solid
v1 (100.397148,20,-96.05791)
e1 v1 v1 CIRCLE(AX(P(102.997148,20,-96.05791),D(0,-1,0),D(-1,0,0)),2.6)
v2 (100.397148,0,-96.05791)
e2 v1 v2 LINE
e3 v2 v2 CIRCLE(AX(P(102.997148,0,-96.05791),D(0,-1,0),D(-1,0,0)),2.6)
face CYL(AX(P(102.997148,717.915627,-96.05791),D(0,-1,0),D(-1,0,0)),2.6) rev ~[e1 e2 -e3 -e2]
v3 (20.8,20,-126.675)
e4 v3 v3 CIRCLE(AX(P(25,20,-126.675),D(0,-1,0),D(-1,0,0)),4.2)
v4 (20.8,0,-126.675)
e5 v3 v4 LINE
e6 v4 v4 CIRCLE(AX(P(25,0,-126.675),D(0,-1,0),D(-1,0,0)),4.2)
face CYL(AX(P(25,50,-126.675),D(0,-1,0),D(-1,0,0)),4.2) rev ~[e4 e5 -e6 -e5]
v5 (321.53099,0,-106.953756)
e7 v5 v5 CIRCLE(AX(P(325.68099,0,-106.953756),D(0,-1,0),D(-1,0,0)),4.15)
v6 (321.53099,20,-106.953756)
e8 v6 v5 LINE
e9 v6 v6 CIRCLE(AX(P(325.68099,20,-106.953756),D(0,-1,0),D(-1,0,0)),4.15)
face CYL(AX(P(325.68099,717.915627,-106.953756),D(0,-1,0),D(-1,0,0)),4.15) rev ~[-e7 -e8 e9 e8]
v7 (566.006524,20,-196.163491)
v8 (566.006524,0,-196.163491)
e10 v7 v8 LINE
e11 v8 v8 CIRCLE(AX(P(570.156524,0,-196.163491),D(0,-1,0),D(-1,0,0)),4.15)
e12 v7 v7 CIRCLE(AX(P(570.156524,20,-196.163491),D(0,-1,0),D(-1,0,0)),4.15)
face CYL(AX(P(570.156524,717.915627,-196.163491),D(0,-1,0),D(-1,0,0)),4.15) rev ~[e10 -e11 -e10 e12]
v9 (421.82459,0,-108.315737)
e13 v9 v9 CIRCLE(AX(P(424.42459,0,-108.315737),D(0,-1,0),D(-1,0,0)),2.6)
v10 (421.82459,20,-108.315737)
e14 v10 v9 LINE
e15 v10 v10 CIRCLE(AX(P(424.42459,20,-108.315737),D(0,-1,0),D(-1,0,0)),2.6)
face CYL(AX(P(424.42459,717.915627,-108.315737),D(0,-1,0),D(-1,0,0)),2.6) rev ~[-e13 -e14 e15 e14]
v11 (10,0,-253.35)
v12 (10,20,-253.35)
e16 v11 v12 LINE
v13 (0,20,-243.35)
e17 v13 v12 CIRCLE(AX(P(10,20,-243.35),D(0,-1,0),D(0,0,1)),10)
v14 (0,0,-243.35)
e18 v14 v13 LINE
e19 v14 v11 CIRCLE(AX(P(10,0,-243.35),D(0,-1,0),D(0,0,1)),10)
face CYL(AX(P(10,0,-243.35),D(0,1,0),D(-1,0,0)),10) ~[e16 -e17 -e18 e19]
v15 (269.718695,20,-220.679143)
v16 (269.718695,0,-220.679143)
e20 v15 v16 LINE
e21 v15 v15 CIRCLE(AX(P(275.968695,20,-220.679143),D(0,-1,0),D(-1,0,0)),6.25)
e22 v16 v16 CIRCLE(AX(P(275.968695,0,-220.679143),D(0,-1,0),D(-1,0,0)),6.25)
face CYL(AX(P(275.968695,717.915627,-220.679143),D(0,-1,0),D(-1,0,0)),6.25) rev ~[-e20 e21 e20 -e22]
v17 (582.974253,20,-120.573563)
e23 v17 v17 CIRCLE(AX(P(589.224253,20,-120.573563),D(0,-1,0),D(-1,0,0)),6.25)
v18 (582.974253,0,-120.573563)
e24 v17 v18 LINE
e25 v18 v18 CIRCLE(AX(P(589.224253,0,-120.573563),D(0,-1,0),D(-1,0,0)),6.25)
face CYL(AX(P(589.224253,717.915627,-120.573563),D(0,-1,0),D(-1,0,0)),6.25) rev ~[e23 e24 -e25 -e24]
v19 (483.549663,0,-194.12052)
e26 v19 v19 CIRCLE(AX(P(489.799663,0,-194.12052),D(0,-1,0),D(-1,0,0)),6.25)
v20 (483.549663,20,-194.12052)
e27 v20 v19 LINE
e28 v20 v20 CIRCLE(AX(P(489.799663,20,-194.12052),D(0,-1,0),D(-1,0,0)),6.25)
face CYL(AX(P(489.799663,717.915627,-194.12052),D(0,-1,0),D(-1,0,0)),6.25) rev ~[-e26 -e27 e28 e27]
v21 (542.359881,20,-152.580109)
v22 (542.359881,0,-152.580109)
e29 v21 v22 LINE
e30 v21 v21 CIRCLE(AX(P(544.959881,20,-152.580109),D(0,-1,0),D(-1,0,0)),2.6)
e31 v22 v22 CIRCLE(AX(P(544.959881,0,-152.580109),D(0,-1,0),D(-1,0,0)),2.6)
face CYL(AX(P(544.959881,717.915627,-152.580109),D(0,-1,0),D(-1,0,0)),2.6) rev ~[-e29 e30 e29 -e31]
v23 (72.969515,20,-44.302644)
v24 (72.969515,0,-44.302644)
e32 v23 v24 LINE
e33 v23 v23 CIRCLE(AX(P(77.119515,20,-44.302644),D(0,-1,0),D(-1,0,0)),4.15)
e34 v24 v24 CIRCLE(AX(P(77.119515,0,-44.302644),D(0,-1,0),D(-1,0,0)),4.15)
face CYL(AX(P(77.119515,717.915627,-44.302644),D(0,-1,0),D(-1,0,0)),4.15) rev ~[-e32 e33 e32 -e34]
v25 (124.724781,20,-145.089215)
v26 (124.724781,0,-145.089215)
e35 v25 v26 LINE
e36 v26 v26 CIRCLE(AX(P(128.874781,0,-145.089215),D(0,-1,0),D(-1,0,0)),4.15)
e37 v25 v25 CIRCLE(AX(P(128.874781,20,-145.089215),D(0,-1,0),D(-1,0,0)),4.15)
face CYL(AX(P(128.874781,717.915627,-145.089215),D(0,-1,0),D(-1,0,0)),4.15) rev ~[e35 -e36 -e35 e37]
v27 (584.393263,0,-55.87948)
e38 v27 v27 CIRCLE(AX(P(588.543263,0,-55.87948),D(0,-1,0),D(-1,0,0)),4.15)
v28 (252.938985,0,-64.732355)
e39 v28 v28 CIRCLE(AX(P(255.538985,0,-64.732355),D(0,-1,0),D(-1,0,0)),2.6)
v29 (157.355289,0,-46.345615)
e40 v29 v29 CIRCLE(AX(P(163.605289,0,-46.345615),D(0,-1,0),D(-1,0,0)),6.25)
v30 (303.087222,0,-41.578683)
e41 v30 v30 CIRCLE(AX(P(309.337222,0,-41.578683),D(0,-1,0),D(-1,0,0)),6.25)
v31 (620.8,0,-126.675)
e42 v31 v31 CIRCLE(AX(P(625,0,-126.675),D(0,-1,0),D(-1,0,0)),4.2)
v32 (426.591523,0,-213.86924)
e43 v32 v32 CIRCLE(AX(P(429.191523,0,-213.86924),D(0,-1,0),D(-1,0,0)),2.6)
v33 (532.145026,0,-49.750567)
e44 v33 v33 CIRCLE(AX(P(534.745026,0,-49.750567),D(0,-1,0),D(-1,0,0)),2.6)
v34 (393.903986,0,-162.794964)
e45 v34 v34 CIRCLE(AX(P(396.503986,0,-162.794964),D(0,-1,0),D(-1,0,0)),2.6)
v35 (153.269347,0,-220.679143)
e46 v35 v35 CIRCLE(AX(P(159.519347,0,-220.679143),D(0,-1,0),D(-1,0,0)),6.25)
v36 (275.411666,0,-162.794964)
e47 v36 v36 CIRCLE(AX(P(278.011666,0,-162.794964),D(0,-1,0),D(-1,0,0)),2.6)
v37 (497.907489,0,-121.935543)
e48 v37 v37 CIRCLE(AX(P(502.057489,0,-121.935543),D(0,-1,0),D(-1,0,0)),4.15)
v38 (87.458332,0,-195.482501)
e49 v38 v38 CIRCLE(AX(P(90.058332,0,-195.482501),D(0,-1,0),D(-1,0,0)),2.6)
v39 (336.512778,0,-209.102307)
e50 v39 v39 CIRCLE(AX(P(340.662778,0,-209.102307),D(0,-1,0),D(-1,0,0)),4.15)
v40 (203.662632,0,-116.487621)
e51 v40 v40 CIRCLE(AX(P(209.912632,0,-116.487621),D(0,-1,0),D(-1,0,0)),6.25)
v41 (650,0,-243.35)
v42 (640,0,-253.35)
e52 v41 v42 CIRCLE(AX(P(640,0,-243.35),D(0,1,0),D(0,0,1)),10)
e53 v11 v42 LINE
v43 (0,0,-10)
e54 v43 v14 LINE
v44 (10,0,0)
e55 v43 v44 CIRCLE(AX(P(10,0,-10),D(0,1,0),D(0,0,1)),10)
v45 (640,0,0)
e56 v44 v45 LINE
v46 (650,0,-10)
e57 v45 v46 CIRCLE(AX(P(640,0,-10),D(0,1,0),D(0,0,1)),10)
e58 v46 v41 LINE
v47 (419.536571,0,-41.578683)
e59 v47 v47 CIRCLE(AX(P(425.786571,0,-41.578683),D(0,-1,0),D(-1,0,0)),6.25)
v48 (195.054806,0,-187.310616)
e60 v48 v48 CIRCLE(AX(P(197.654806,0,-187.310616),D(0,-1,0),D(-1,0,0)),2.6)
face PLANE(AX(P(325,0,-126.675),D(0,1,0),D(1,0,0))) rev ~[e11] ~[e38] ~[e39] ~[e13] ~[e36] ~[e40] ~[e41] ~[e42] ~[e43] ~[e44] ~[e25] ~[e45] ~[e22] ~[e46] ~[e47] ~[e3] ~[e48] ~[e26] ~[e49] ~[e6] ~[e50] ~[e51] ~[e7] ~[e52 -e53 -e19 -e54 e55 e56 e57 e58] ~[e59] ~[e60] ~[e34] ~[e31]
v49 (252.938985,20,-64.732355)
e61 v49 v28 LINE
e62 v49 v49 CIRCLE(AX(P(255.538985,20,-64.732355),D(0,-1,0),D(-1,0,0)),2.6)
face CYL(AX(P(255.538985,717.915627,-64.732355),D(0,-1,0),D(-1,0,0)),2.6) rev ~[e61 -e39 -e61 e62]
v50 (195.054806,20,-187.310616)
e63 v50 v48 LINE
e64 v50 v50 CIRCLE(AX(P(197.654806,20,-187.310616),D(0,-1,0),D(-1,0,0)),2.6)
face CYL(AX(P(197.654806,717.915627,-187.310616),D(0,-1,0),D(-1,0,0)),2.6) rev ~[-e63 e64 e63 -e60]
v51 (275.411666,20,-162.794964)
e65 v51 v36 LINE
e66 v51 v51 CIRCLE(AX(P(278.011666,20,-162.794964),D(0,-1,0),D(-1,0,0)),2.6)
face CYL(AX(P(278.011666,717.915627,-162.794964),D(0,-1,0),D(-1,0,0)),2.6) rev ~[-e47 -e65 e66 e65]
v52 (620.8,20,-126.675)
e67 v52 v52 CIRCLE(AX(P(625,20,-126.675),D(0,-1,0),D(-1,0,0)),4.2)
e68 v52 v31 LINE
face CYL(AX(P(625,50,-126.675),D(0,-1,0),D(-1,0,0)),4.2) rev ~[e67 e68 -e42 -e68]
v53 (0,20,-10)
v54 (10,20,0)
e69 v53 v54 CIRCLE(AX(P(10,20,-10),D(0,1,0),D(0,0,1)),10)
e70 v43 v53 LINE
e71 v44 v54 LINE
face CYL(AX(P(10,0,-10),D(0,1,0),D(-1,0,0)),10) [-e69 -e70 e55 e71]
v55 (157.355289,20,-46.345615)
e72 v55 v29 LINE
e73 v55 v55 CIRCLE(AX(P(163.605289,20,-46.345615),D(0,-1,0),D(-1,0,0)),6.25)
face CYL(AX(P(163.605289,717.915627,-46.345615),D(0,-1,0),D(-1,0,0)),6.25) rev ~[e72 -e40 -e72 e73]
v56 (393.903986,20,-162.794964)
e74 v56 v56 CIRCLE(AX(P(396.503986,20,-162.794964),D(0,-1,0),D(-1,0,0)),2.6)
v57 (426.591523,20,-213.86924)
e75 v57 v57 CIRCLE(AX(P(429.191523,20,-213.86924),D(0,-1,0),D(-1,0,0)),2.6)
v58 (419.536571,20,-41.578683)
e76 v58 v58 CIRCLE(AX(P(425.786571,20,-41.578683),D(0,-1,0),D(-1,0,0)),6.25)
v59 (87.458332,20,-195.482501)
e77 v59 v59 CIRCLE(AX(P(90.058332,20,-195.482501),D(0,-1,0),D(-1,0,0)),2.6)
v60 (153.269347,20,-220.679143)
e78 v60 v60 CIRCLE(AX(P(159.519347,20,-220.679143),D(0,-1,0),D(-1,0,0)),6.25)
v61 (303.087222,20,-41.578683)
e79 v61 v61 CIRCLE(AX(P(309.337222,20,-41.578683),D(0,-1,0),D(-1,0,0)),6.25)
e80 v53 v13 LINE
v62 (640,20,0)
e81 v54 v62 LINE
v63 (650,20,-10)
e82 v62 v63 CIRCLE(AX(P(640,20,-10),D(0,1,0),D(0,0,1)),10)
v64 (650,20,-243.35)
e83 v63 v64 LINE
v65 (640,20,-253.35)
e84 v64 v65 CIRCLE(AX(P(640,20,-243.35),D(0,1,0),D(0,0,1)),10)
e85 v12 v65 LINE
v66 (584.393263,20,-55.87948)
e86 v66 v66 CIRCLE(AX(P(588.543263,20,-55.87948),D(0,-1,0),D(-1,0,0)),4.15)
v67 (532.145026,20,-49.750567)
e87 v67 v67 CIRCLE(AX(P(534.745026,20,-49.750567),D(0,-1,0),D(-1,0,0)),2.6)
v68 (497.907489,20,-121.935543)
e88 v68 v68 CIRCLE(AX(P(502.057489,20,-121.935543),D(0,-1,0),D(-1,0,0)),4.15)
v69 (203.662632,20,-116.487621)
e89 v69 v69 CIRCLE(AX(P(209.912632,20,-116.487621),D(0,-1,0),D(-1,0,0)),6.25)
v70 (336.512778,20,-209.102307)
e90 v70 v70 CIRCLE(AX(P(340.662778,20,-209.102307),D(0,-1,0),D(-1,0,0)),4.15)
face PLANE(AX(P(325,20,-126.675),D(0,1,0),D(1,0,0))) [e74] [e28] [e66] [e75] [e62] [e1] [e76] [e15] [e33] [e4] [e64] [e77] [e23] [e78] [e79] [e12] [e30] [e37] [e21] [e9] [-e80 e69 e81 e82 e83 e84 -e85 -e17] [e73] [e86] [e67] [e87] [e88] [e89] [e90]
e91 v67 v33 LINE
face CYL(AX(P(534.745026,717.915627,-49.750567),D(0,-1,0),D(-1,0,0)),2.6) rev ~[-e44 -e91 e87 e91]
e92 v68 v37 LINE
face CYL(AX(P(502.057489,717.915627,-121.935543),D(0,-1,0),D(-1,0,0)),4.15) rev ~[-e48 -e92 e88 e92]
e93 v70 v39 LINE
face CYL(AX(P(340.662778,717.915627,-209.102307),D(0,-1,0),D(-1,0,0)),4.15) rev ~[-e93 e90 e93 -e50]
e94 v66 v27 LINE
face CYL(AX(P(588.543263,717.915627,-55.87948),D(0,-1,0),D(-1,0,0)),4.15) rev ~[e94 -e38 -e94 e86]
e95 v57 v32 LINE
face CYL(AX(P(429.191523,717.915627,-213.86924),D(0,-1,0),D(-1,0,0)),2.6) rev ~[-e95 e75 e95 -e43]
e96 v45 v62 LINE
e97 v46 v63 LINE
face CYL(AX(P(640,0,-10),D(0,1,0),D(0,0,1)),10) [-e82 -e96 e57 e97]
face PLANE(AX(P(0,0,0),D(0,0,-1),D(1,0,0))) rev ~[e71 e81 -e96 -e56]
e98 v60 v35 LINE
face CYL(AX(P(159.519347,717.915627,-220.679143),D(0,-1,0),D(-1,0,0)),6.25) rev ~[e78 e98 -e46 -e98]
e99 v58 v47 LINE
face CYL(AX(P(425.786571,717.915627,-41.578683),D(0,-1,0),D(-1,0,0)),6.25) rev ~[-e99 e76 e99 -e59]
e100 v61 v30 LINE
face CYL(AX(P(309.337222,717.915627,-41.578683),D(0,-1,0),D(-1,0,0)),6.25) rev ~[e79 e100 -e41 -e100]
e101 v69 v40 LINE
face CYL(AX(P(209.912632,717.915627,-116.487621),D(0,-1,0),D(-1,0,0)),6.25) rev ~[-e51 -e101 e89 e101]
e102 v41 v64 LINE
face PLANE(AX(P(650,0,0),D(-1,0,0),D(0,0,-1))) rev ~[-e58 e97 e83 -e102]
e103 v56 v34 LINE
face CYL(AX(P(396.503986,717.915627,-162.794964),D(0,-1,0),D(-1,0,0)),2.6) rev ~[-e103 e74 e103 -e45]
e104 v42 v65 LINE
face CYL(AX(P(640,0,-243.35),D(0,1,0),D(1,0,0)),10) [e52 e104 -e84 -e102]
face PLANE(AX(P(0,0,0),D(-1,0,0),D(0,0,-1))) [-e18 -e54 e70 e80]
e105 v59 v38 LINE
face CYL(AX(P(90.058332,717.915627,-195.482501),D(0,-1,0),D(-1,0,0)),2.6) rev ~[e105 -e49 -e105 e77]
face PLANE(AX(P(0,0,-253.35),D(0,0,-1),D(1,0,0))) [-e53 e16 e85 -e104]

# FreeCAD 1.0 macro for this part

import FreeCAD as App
import Part
import Sketcher
from FreeCAD import Vector


def edges_at(feature, points):
    """Names of the edges that pass closest to the given points."""
    edges = feature.Shape.Edges
    near = lambda p: min(range(len(edges)), key=lambda i: edges[i].distToShape(Part.Vertex(*p))[0])
    return sorted({f"Edge{near(p) + 1}" for p in points})


def add_polygon(sketch, points):
    """Adds a closed chain of lines whose ends are joined by coincident constraints."""
    first, n = sketch.GeometryCount, len(points)
    for a, b in zip(points, points[1:] + points[:1]):
        sketch.addGeometry(Part.LineSegment(App.Vector(*a, 0), App.Vector(*b, 0)), False)
    for i in range(n):
        sketch.addConstraint(Sketcher.Constraint("Coincident", first + i, 2, first + (i + 1) % n, 1))

doc = App.newDocument("Part")
body = doc.addObject("PartDesign::Body", "Body")

sketch1 = body.newObject("Sketcher::SketchObject", "Sketch")
sketch1.AttachmentSupport = (doc.getObject("XZ_Plane"), [""])
sketch1.MapMode = "FlatFace"
add_polygon(sketch1, [(0, -253), (0, 0), (650, 0), (650, -253)])
sketch1.addConstraint(Sketcher.Constraint("Vertical", 0))
sketch1.addConstraint(Sketcher.Constraint("Horizontal", 1))
sketch1.addConstraint(Sketcher.Constraint("Vertical", 2))
sketch1.addConstraint(Sketcher.Constraint("Horizontal", 3))
sketch1.addConstraint(Sketcher.Constraint("Coincident", 0, 2, -1, 1))
sketch1.addConstraint(Sketcher.Constraint("DistanceX", 1, 1, 1, 2, 650.0))
sketch1.addConstraint(Sketcher.Constraint("DistanceY", 0, 1, 0, 2, 253.35))
pad1 = body.newObject("PartDesign::Pad", "Pad")
pad1.Profile = sketch1
pad1.Length = 20
pad1.Reversed = True
doc.recompute()

fillet = body.newObject("PartDesign::Fillet", "Fillet")
fillet.Base = (pad1, edges_at(pad1, [
    (0, 10, 0),
    (0, 10, -253.35),
    (650, 10, -253.35),
    (650, 10, 0),
]))
fillet.Radius = 10

sketch2 = body.newObject("Sketcher::SketchObject", "Sketch001")
sketch2.AttachmentSupport = (doc.getObject("XZ_Plane"), [""])
sketch2.MapMode = "FlatFace"
sketch2.AttachmentOffset = App.Placement(Vector(0, 0, -20), App.Rotation())
sketch2.addGeometry(Part.Circle(Vector(90.1, -195.5, 0), Vector(0, 0, 1), 2.6), False)
sketch2.addGeometry(Part.Circle(Vector(255.5, -64.7, 0), Vector(0, 0, 1), 2.6), False)
sketch2.addGeometry(Part.Circle(Vector(396.5, -162.8, 0), Vector(0, 0, 1), 2.6), False)
sketch2.addGeometry(Part.Circle(Vector(545, -152.6, 0), Vector(0, 0, 1), 2.6), False)
sketch2.addGeometry(Part.Circle(Vector(534.7, -49.8, 0), Vector(0, 0, 1), 2.6), False)
sketch2.addGeometry(Part.Circle(Vector(278, -162.8, 0), Vector(0, 0, 1), 2.6), False)
sketch2.addGeometry(Part.Circle(Vector(103, -96.1, 0), Vector(0, 0, 1), 2.6), False)
sketch2.addGeometry(Part.Circle(Vector(429.2, -213.9, 0), Vector(0, 0, 1), 2.6), False)
sketch2.addGeometry(Part.Circle(Vector(424.4, -108.3, 0), Vector(0, 0, 1), 2.6), False)
sketch2.addGeometry(Part.Circle(Vector(197.7, -187.3, 0), Vector(0, 0, 1), 2.6), False)
sketch2.addConstraint(Sketcher.Constraint("Equal", 0, 1))
sketch2.addConstraint(Sketcher.Constraint("Equal", 1, 2))
sketch2.addConstraint(Sketcher.Constraint("Equal", 2, 3))
sketch2.addConstraint(Sketcher.Constraint("Equal", 3, 4))
sketch2.addConstraint(Sketcher.Constraint("Equal", 4, 5))
sketch2.addConstraint(Sketcher.Constraint("Equal", 5, 6))
sketch2.addConstraint(Sketcher.Constraint("Equal", 6, 7))
sketch2.addConstraint(Sketcher.Constraint("Equal", 7, 8))
sketch2.addConstraint(Sketcher.Constraint("Equal", 8, 9))
sketch2.addConstraint(Sketcher.Constraint("Horizontal", 2, 3, 5, 3))
sketch2.addConstraint(Sketcher.Constraint("Diameter", 0, 5.2))
sketch2.addConstraint(Sketcher.Constraint("DistanceX", 1, 3, 2, 3, 140.965001))
sketch2.addConstraint(Sketcher.Constraint("DistanceY", 0, 3, -1, 1, 195.482501))
sketch2.addConstraint(Sketcher.Constraint("DistanceX", -1, 1, 0, 3, 90.058332))
sketch2.addConstraint(Sketcher.Constraint("DistanceX", -1, 1, 3, 3, 544.959881))
sketch2.addConstraint(Sketcher.Constraint("DistanceY", 3, 3, -1, 1, 152.580109))
sketch2.addConstraint(Sketcher.Constraint("DistanceX", -1, 1, 6, 3, 102.997148))
sketch2.addConstraint(Sketcher.Constraint("DistanceY", 6, 3, -1, 1, 96.05791))
sketch2.addConstraint(Sketcher.Constraint("DistanceY", 7, 3, -1, 1, 213.86924))
sketch2.addConstraint(Sketcher.Constraint("DistanceX", -1, 1, 8, 3, 424.42459))
sketch2.addConstraint(Sketcher.Constraint("DistanceY", 2, 3, 1, 3, 98.062609))
sketch2.addConstraint(Sketcher.Constraint("DistanceY", 3, 3, 4, 3, 102.829542))
sketch2.addConstraint(Sketcher.Constraint("DistanceX", 2, 3, 4, 3, 138.24104))
sketch2.addConstraint(Sketcher.Constraint("DistanceX", 1, 3, 5, 3, 22.472681))
sketch2.addConstraint(Sketcher.Constraint("DistanceX", 6, 3, 5, 3, 175.014518))
sketch2.addConstraint(Sketcher.Constraint("DistanceX", 7, 3, 3, 3, 115.768358))
sketch2.addConstraint(Sketcher.Constraint("DistanceY", 8, 3, 4, 3, 58.56517))
sketch2.addConstraint(Sketcher.Constraint("DistanceX", 9, 3, 5, 3, 80.356861))
sketch2.addConstraint(Sketcher.Constraint("DistanceY", 9, 3, 1, 3, 122.578262))
sketch2.addConstraint(Sketcher.Constraint("DistanceY", 1, 3, -1, 1, 64.732355))
doc.recompute()
hole = body.newObject("PartDesign::Hole", "Hole")
hole.Profile = sketch2
hole.ThreadType = "None"
hole.Diameter = 5.2
hole.DepthType = "ThroughAll"
hole.Reversed = True

sketch3 = body.newObject("Sketcher::SketchObject", "Sketch002")
sketch3.AttachmentSupport = (doc.getObject("XZ_Plane"), [""])
sketch3.MapMode = "FlatFace"
sketch3.AttachmentOffset = App.Placement(Vector(0, 0, -20), App.Rotation())
sketch3.addGeometry(Part.Circle(Vector(128.9, -145.1, 0), Vector(0, 0, 1), 4.2), False)
sketch3.addGeometry(Part.Circle(Vector(77.1, -44.3, 0), Vector(0, 0, 1), 4.2), False)
sketch3.addGeometry(Part.Circle(Vector(325.7, -107, 0), Vector(0, 0, 1), 4.2), False)
sketch3.addGeometry(Part.Circle(Vector(340.7, -209.1, 0), Vector(0, 0, 1), 4.2), False)
sketch3.addGeometry(Part.Circle(Vector(502.1, -121.9, 0), Vector(0, 0, 1), 4.2), False)
sketch3.addGeometry(Part.Circle(Vector(570.2, -196.2, 0), Vector(0, 0, 1), 4.2), False)
sketch3.addGeometry(Part.Circle(Vector(588.5, -55.9, 0), Vector(0, 0, 1), 4.2), False)
sketch3.addConstraint(Sketcher.Constraint("Equal", 0, 1))
sketch3.addConstraint(Sketcher.Constraint("Equal", 1, 2))
sketch3.addConstraint(Sketcher.Constraint("Equal", 2, 3))
sketch3.addConstraint(Sketcher.Constraint("Equal", 3, 4))
sketch3.addConstraint(Sketcher.Constraint("Equal", 4, 5))
sketch3.addConstraint(Sketcher.Constraint("Equal", 5, 6))
sketch3.addConstraint(Sketcher.Constraint("Diameter", 0, 8.3))
sketch3.addConstraint(Sketcher.Constraint("DistanceX", 2, 3, 4, 3, 176.376499))
sketch3.addConstraint(Sketcher.Constraint("DistanceY", 4, 3, 1, 3, 77.632899))
sketch3.addConstraint(Sketcher.Constraint("DistanceX", -1, 1, 0, 3, 128.874781))
sketch3.addConstraint(Sketcher.Constraint("DistanceX", -1, 1, 2, 3, 325.68099))
sketch3.addConstraint(Sketcher.Constraint("DistanceY", 5, 3, -1, 1, 196.163491))
sketch3.addConstraint(Sketcher.Constraint("DistanceY", 6, 3, -1, 1, 55.87948))
sketch3.addConstraint(Sketcher.Constraint("DistanceY", 0, 3, 1, 3, 100.786571))
sketch3.addConstraint(Sketcher.Constraint("DistanceY", 0, 3, 2, 3, 38.135459))
sketch3.addConstraint(Sketcher.Constraint("DistanceY", 3, 3, 2, 3, 102.148551))
sketch3.addConstraint(Sketcher.Constraint("DistanceX", 3, 3, 4, 3, 161.394711))
sketch3.addConstraint(Sketcher.Constraint("DistanceX", 1, 3, 5, 3, 493.037009))
sketch3.addConstraint(Sketcher.Constraint("DistanceX", 5, 3, 6, 3, 18.386739))
sketch3.addConstraint(Sketcher.Constraint("DistanceX", 0, 3, 6, 3, 459.668482))
sketch3.addConstraint(Sketcher.Constraint("DistanceY", 0, 3, -1, 1, 145.089215))
doc.recompute()
hole2 = body.newObject("PartDesign::Hole", "Hole001")
hole2.Profile = sketch3
hole2.ThreadType = "None"
hole2.Diameter = 8.3
hole2.DepthType = "ThroughAll"
hole2.Reversed = True

sketch4 = body.newObject("Sketcher::SketchObject", "Sketch003")
sketch4.AttachmentSupport = (doc.getObject("XZ_Plane"), [""])
sketch4.MapMode = "FlatFace"
sketch4.AttachmentOffset = App.Placement(Vector(0, 0, -20), App.Rotation())
sketch4.addGeometry(Part.Circle(Vector(210, -116, 0), Vector(0, 0, 1), 6), False)
sketch4.addGeometry(Part.Circle(Vector(426, -42, 0), Vector(0, 0, 1), 6), False)
sketch4.addGeometry(Part.Circle(Vector(490, -194, 0), Vector(0, 0, 1), 6), False)
sketch4.addGeometry(Part.Circle(Vector(309, -42, 0), Vector(0, 0, 1), 6), False)
sketch4.addGeometry(Part.Circle(Vector(164, -46, 0), Vector(0, 0, 1), 6), False)
sketch4.addGeometry(Part.Circle(Vector(160, -221, 0), Vector(0, 0, 1), 6), False)
sketch4.addGeometry(Part.Circle(Vector(276, -221, 0), Vector(0, 0, 1), 6), False)
sketch4.addGeometry(Part.Circle(Vector(589, -121, 0), Vector(0, 0, 1), 6), False)
sketch4.addConstraint(Sketcher.Constraint("Equal", 0, 1))
sketch4.addConstraint(Sketcher.Constraint("Equal", 1, 2))
sketch4.addConstraint(Sketcher.Constraint("Equal", 2, 3))
sketch4.addConstraint(Sketcher.Constraint("Equal", 3, 4))
sketch4.addConstraint(Sketcher.Constraint("Equal", 4, 5))
sketch4.addConstraint(Sketcher.Constraint("Equal", 5, 6))
sketch4.addConstraint(Sketcher.Constraint("Equal", 6, 7))
sketch4.addConstraint(Sketcher.Constraint("Horizontal", 1, 3, 3, 3))
sketch4.addConstraint(Sketcher.Constraint("Horizontal", 5, 3, 6, 3))
sketch4.addConstraint(Sketcher.Constraint("Diameter", 0, 12.5))
sketch4.addConstraint(Sketcher.Constraint("DistanceY", 2, 3, 0, 3, 77.632899))
sketch4.addConstraint(Sketcher.Constraint("DistanceX", -1, 1, 0, 3, 209.912632))
sketch4.addConstraint(Sketcher.Constraint("DistanceY", 0, 3, -1, 1, 116.487621))
sketch4.addConstraint(Sketcher.Constraint("DistanceX", -1, 1, 1, 3, 425.786571))
sketch4.addConstraint(Sketcher.Constraint("DistanceX", -1, 1, 4, 3, 163.605289))
sketch4.addConstraint(Sketcher.Constraint("DistanceX", 0, 3, 2, 3, 279.887031))
sketch4.addConstraint(Sketcher.Constraint("DistanceX", 3, 3, 1, 3, 116.449349))
sketch4.addConstraint(Sketcher.Constraint("DistanceY", 5, 3, 3, 3, 179.10046))
sketch4.addConstraint(Sketcher.Constraint("DistanceX", 5, 3, 6, 3, 116.449349))
sketch4.addConstraint(Sketcher.Constraint("DistanceX", 2, 3, 7, 3, 99.42459))
sketch4.addConstraint(Sketcher.Constraint("DistanceY", 7, 3, 1, 3, 78.99488))
sketch4.addConstraint(Sketcher.Constraint("DistanceY", 1, 3, -1, 1, 41.578683))
sketch4.addConstraint(Sketcher.Constraint("DistanceY", 4, 3, -1, 1, 46.345615))
sketch4.addConstraint(Sketcher.Constraint("DistanceX", -1, 1, 5, 3, 159.519347))
doc.recompute()
hole3 = body.newObject("PartDesign::Hole", "Hole002")
hole3.Profile = sketch4
hole3.ThreadType = "None"
hole3.Diameter = 12.5
hole3.DepthType = "ThroughAll"
hole3.Reversed = True

sketch5 = body.newObject("Sketcher::SketchObject", "Sketch004")
sketch5.AttachmentSupport = (doc.getObject("XZ_Plane"), [""])
sketch5.MapMode = "FlatFace"
sketch5.AttachmentOffset = App.Placement(Vector(0, 0, -20), App.Rotation())
sketch5.addGeometry(Part.Circle(Vector(25, -126.7, 0), Vector(0, 0, 1), 4.2), False)
sketch5.addGeometry(Part.Circle(Vector(625, -126.7, 0), Vector(0, 0, 1), 4.2), False)
sketch5.addConstraint(Sketcher.Constraint("Equal", 0, 1))
sketch5.addConstraint(Sketcher.Constraint("Horizontal", 0, 3, 1, 3))
sketch5.addConstraint(Sketcher.Constraint("Diameter", 0, 8.4))
sketch5.addConstraint(Sketcher.Constraint("DistanceX", -1, 1, 0, 3, 25.0))
sketch5.addConstraint(Sketcher.Constraint("DistanceX", -1, 1, 1, 3, 625.0))
sketch5.addConstraint(Sketcher.Constraint("DistanceY", 0, 3, -1, 1, 126.675))
doc.recompute()
hole4 = body.newObject("PartDesign::Hole", "Hole003")
hole4.Profile = sketch5
hole4.ThreadType = "None"
hole4.Diameter = 8.4
hole4.DepthType = "Dimension"
hole4.Depth = 30
hole4.DrillPoint = "Angled"
hole4.DrillPointAngle = 118
hole4.Reversed = True

doc.recompute()
